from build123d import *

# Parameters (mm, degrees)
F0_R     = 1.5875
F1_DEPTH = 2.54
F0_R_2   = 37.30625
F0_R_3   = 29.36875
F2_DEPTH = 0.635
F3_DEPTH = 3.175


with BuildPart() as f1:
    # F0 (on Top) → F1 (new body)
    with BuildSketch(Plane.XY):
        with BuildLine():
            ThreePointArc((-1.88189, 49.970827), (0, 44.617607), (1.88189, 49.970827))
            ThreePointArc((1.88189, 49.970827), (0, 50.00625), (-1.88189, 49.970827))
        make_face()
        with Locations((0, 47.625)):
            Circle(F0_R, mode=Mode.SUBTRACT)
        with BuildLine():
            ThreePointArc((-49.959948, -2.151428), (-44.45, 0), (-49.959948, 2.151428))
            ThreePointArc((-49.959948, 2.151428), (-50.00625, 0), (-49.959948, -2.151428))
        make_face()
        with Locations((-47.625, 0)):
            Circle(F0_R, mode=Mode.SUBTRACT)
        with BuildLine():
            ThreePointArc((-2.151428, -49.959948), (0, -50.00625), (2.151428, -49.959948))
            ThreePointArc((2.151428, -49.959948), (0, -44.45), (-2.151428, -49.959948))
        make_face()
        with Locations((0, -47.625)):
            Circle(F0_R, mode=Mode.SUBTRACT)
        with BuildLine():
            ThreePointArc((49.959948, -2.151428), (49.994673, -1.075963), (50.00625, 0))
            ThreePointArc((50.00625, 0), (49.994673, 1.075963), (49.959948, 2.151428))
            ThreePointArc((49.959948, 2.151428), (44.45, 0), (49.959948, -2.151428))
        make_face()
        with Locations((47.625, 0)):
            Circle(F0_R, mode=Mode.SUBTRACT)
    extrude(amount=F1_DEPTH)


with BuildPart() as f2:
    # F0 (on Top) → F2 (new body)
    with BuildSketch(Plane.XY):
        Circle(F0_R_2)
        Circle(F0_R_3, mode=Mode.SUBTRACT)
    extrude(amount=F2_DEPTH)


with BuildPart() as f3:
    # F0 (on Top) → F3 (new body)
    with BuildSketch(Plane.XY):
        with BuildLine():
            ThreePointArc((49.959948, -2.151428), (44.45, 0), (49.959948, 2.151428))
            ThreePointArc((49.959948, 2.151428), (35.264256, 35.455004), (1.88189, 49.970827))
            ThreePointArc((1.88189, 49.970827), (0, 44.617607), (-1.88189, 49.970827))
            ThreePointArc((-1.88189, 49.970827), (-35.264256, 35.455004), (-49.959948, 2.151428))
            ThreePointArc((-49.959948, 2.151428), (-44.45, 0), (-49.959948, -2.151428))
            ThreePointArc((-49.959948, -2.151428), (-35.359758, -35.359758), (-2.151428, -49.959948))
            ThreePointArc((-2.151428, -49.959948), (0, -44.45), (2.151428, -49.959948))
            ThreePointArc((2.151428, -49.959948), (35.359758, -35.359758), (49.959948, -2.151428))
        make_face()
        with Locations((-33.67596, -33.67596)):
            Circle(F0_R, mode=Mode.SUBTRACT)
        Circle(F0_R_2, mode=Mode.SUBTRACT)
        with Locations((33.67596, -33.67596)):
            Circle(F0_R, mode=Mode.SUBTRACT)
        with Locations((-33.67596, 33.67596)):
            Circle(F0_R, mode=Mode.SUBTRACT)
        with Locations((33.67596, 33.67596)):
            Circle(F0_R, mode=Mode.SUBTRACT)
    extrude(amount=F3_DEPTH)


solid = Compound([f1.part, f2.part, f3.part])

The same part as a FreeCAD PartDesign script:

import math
import FreeCAD as App
import Part
import Sketcher
from FreeCAD import Vector
Q = App.Units.Quantity

doc = App.newDocument("Part")
body = doc.addObject("PartDesign::Body", "Body")
body.AllowCompound = True

sketch1 = body.newObject("Sketcher::SketchObject", "Sketch")
sketch1.AttachmentSupport = (doc.getObject("XY_Plane"), [""])
sketch1.MapMode = "FlatFace"
sketch1.addGeometry(Part.ArcOfCircle(Part.Circle(Vector(0, 47.6, 0), Vector(0, 0, 1), 3), math.radians(129), math.radians(411)), False)
sketch1.addGeometry(Part.ArcOfCircle(Part.Circle(Vector(0, 0, 0), Vector(0, 0, 1), 50), math.radians(87.84), math.radians(92.16)), False)
sketch1.addGeometry(Part.Circle(Vector(0, 47.6, 0), Vector(0, 0, 1), 1.6), False)
sketch1.addGeometry(Part.ArcOfCircle(Part.Circle(Vector(-47.6, 0, 0), Vector(0, 0, 1), 3.2), math.radians(-137), math.radians(137)), False)
sketch1.addGeometry(Part.ArcOfCircle(Part.Circle(Vector(0, 0, 0), Vector(0, 0, 1), 50), math.radians(177.53), math.radians(182.47)), False)
sketch1.addGeometry(Part.Circle(Vector(-47.6, 0, 0), Vector(0, 0, 1), 1.6), False)
sketch1.addGeometry(Part.ArcOfCircle(Part.Circle(Vector(0, 0, 0), Vector(0, 0, 1), 50), math.radians(-92.47), math.radians(-87.53)), False)
sketch1.addGeometry(Part.ArcOfCircle(Part.Circle(Vector(0, -47.6, 0), Vector(0, 0, 1), 3.2), math.radians(-47), math.radians(227)), False)
sketch1.addGeometry(Part.Circle(Vector(0, -47.6, 0), Vector(0, 0, 1), 1.6), False)
sketch1.addGeometry(Part.ArcOfCircle(Part.Circle(Vector(0, 0, 0), Vector(0, 0, 1), 50), math.radians(-2.47), math.radians(0)), False)
sketch1.addGeometry(Part.ArcOfCircle(Part.Circle(Vector(0, 0, 0), Vector(0, 0, 1), 50), math.radians(0), math.radians(2.47)), False)
sketch1.addGeometry(Part.ArcOfCircle(Part.Circle(Vector(47.6, 0, 0), Vector(0, 0, 1), 3.2), math.radians(43), math.radians(317)), False)
sketch1.addGeometry(Part.Circle(Vector(47.6, 0, 0), Vector(0, 0, 1), 1.6), False)
sketch1.addConstraint(Sketcher.Constraint("Coincident", 0, 1, 1, 2))
sketch1.addConstraint(Sketcher.Constraint("Coincident", 1, 1, 0, 2))
sketch1.addConstraint(Sketcher.Constraint("Coincident", 3, 1, 4, 2))
sketch1.addConstraint(Sketcher.Constraint("Coincident", 4, 1, 3, 2))
sketch1.addConstraint(Sketcher.Constraint("Coincident", 6, 1, 7, 2))
sketch1.addConstraint(Sketcher.Constraint("Coincident", 7, 1, 6, 2))
sketch1.addConstraint(Sketcher.Constraint("Tangent", 9, 2, 10, 1))
sketch1.addConstraint(Sketcher.Constraint("Coincident", 10, 2, 11, 1))
sketch1.addConstraint(Sketcher.Constraint("Coincident", 11, 2, 9, 1))
sketch1.addConstraint(Sketcher.Constraint("Coincident", 2, 3, 0, 3))
sketch1.addConstraint(Sketcher.Constraint("Coincident", 5, 3, 3, 3))
sketch1.addConstraint(Sketcher.Constraint("Coincident", 8, 3, 7, 3))
sketch1.addConstraint(Sketcher.Constraint("Coincident", 12, 3, 11, 3))
sketch1.addConstraint(Sketcher.Constraint("Equal", 2, 5))
sketch1.addConstraint(Sketcher.Constraint("Equal", 4, 6))
sketch1.addConstraint(Sketcher.Constraint("Equal", 3, 7))
sketch1.addConstraint(Sketcher.Constraint("Equal", 5, 8))
sketch1.addConstraint(Sketcher.Constraint("Equal", 9, 10))
sketch1.addConstraint(Sketcher.Constraint("Equal", 7, 11))
sketch1.addConstraint(Sketcher.Constraint("Equal", 8, 12))
sketch1.addConstraint(Sketcher.Constraint("Symmetric", 0, 3, 7, 3, -1, 1))
sketch1.addConstraint(Sketcher.Constraint("Symmetric", 3, 3, 11, 3, -1, 1))
sketch1.addConstraint(Sketcher.Constraint("Symmetric", 0, 1, 1, 1, -2))
sketch1.addConstraint(Sketcher.Constraint("Symmetric", 4, 1, 10, 2, -2))
sketch1.addConstraint(Sketcher.Constraint("PointOnObject", 4, 3, -1))
sketch1.addConstraint(Sketcher.Constraint("PointOnObject", 6, 3, -2))
sketch1.addConstraint(Sketcher.Constraint("PointOnObject", 9, 2, -1))
sketch1.addConstraint(Sketcher.Constraint("Horizontal", 3, 1, 11, 2))
sketch1.addConstraint(Sketcher.Constraint("Diameter", 2, Q("0.125 in")))
sketch1.addConstraint(Sketcher.Constraint("Radius", 3, Q("0.125 in")))
sketch1.addConstraint(Sketcher.Constraint("DistanceY", -1, 1, 0, 3, Q("1.875 in")))
sketch1.addConstraint(Sketcher.Constraint("DistanceX", 3, 3, -1, 1, Q("1.875 in")))
sketch1.addConstraint(Sketcher.Constraint("DistanceX", -1, 1, 9, 2, Q("1.96875 in")))
sketch1.addConstraint(Sketcher.Constraint("Radius", 1, Q("50.00656 mm")))
sketch1.addConstraint(Sketcher.Constraint("Radius", 4, Q("50.006331 mm")))
sketch1.addConstraint(Sketcher.Constraint("Radius", 9, Q("50.007031 mm")))
sketch1.addConstraint(Sketcher.Constraint("Radius", 0, Q("3.007393 mm")))
sketch1.addConstraint(Sketcher.Constraint("DistanceY", 1, 3, -1, 1, Q("0.00031 mm")))
sketch1.addConstraint(Sketcher.Constraint("DistanceX", -1, 1, 7, 1, Q("2.151428 mm")))
pad1 = body.newObject("PartDesign::Pad", "Pad")
pad1.Profile = sketch1
pad1.Length = Q("0.1 in")
body2 = doc.addObject("PartDesign::Body", "Body001")

sketch2 = body2.newObject("Sketcher::SketchObject", "Sketch001")
sketch2.AttachmentSupport = (doc.getObject("XY_Plane001"), [""])
sketch2.MapMode = "FlatFace"
sketch2.addGeometry(Part.Circle(Vector(0, 0, 0), Vector(0, 0, 1), 37), False)
sketch2.addGeometry(Part.Circle(Vector(0, 0, 0), Vector(0, 0, 1), 29), False)
sketch2.addConstraint(Sketcher.Constraint("Coincident", 0, 3, -1, 1))
sketch2.addConstraint(Sketcher.Constraint("Coincident", 1, 3, -1, 1))
sketch2.addConstraint(Sketcher.Constraint("Diameter", 0, Q("2.9375 in")))
sketch2.addConstraint(Sketcher.Constraint("Diameter", 1, Q("2.3125 in")))
pad2 = body2.newObject("PartDesign::Pad", "Pad001")
pad2.Profile = sketch2
pad2.Length = Q("0.025 in")
body3 = doc.addObject("PartDesign::Body", "Body002")

sketch3 = body3.newObject("Sketcher::SketchObject", "Sketch002")
sketch3.AttachmentSupport = (doc.getObject("XY_Plane002"), [""])
sketch3.MapMode = "FlatFace"
sketch3.addGeometry(Part.ArcOfCircle(Part.Circle(Vector(47.6, 0, 0), Vector(0, 0, 1), 3.2), math.radians(43), math.radians(317)), False)
sketch3.addGeometry(Part.ArcOfCircle(Part.Circle(Vector(0, 0, 0), Vector(0, 0, 1), 50), math.radians(2), math.radians(88)), False)
sketch3.addGeometry(Part.ArcOfCircle(Part.Circle(Vector(0, 47.6, 0), Vector(0, 0, 1), 3), math.radians(129), math.radians(411)), False)
sketch3.addGeometry(Part.ArcOfCircle(Part.Circle(Vector(0, 0, 0), Vector(0, 0, 1), 50), math.radians(92), math.radians(178)), False)
sketch3.addGeometry(Part.ArcOfCircle(Part.Circle(Vector(-47.6, 0, 0), Vector(0, 0, 1), 3.2), math.radians(-137), math.radians(137)), False)
sketch3.addGeometry(Part.ArcOfCircle(Part.Circle(Vector(0, 0, 0), Vector(0, 0, 1), 50), math.radians(-178), math.radians(-92)), False)
sketch3.addGeometry(Part.ArcOfCircle(Part.Circle(Vector(0, -47.6, 0), Vector(0, 0, 1), 3.2), math.radians(-47), math.radians(227)), False)
sketch3.addGeometry(Part.ArcOfCircle(Part.Circle(Vector(0, 0, 0), Vector(0, 0, 1), 50), math.radians(-88), math.radians(-2)), False)
sketch3.addGeometry(Part.Circle(Vector(-33.7, -33.7, 0), Vector(0, 0, 1), 1.6), False)
sketch3.addGeometry(Part.Circle(Vector(33.7, -33.7, 0), Vector(0, 0, 1), 1.6), False)
sketch3.addGeometry(Part.Circle(Vector(-33.7, 33.7, 0), Vector(0, 0, 1), 1.6), False)
sketch3.addGeometry(Part.Circle(Vector(0, 0, 0), Vector(0, 0, 1), 37.3), False)
sketch3.addGeometry(Part.Circle(Vector(33.7, 33.7, 0), Vector(0, 0, 1), 1.6), False)
sketch3.addConstraint(Sketcher.Constraint("Coincident", 0, 1, 1, 1))
sketch3.addConstraint(Sketcher.Constraint("Coincident", 1, 2, 2, 2))
sketch3.addConstraint(Sketcher.Constraint("Coincident", 2, 1, 3, 1))
sketch3.addConstraint(Sketcher.Constraint("Coincident", 3, 2, 4, 2))
sketch3.addConstraint(Sketcher.Constraint("Coincident", 4, 1, 5, 1))
sketch3.addConstraint(Sketcher.Constraint("Coincident", 5, 2, 6, 2))
sketch3.addConstraint(Sketcher.Constraint("Coincident", 6, 1, 7, 1))
sketch3.addConstraint(Sketcher.Constraint("Coincident", 7, 2, 0, 2))
sketch3.addConstraint(Sketcher.Constraint("Coincident", 1, 3, -1, 1))
sketch3.addConstraint(Sketcher.Constraint("Coincident", 3, 3, -1, 1))
sketch3.addConstraint(Sketcher.Constraint("Coincident", 5, 3, -1, 1))
sketch3.addConstraint(Sketcher.Constraint("Coincident", 7, 3, -1, 1))
sketch3.addConstraint(Sketcher.Constraint("Coincident", 11, 3, -1, 1))
sketch3.addConstraint(Sketcher.Constraint("Equal", 1, 3))
sketch3.addConstraint(Sketcher.Constraint("Equal", 0, 4))
sketch3.addConstraint(Sketcher.Constraint("Equal", 4, 6))
sketch3.addConstraint(Sketcher.Constraint("Equal", 5, 7))
sketch3.addConstraint(Sketcher.Constraint("Equal", 8, 9))
sketch3.addConstraint(Sketcher.Constraint("Equal", 9, 10))
sketch3.addConstraint(Sketcher.Constraint("Equal", 10, 12))
sketch3.addConstraint(Sketcher.Constraint("Symmetric", 0, 3, 4, 3, -1, 1))
sketch3.addConstraint(Sketcher.Constraint("Symmetric", 2, 3, 6, 3, -1, 1))
sketch3.addConstraint(Sketcher.Constraint("Symmetric", 9, 3, 10, 3, -1, 1))
sketch3.addConstraint(Sketcher.Constraint("Symmetric", 8, 3, 12, 3, -1, 1))
sketch3.addConstraint(Sketcher.Constraint("Symmetric", 8, 3, 9, 3, -2))
sketch3.addConstraint(Sketcher.Constraint("Symmetric", 3, 2, 4, 1, -1))
sketch3.addConstraint(Sketcher.Constraint("PointOnObject", 2, 3, -2))
sketch3.addConstraint(Sketcher.Constraint("Diameter", 8, Q("0.125 in")))
sketch3.addConstraint(Sketcher.Constraint("Diameter", 11, Q("2.9375 in")))
sketch3.addConstraint(Sketcher.Constraint("Radius", 0, Q("0.125 in")))
sketch3.addConstraint(Sketcher.Constraint("Radius", 1, Q("1.96875 in")))
sketch3.addConstraint(Sketcher.Constraint("DistanceX", 4, 3, 0, 3, Q("3.75 in")))
sketch3.addConstraint(Sketcher.Constraint("DistanceY", -1, 1, 2, 3, Q("1.875 in")))
sketch3.addConstraint(Sketcher.Constraint("Radius", 2, Q("3.007393 mm")))
sketch3.addConstraint(Sketcher.Constraint("DistanceX", 8, 3, -1, 1, Q("33.67596 mm")))
sketch3.addConstraint(Sketcher.Constraint("DistanceY", 8, 3, -1, 1, Q("33.67596 mm")))
pad3 = body3.newObject("PartDesign::Pad", "Pad002")
pad3.Profile = sketch3
pad3.Length = Q("0.125 in")

doc.recompute()
